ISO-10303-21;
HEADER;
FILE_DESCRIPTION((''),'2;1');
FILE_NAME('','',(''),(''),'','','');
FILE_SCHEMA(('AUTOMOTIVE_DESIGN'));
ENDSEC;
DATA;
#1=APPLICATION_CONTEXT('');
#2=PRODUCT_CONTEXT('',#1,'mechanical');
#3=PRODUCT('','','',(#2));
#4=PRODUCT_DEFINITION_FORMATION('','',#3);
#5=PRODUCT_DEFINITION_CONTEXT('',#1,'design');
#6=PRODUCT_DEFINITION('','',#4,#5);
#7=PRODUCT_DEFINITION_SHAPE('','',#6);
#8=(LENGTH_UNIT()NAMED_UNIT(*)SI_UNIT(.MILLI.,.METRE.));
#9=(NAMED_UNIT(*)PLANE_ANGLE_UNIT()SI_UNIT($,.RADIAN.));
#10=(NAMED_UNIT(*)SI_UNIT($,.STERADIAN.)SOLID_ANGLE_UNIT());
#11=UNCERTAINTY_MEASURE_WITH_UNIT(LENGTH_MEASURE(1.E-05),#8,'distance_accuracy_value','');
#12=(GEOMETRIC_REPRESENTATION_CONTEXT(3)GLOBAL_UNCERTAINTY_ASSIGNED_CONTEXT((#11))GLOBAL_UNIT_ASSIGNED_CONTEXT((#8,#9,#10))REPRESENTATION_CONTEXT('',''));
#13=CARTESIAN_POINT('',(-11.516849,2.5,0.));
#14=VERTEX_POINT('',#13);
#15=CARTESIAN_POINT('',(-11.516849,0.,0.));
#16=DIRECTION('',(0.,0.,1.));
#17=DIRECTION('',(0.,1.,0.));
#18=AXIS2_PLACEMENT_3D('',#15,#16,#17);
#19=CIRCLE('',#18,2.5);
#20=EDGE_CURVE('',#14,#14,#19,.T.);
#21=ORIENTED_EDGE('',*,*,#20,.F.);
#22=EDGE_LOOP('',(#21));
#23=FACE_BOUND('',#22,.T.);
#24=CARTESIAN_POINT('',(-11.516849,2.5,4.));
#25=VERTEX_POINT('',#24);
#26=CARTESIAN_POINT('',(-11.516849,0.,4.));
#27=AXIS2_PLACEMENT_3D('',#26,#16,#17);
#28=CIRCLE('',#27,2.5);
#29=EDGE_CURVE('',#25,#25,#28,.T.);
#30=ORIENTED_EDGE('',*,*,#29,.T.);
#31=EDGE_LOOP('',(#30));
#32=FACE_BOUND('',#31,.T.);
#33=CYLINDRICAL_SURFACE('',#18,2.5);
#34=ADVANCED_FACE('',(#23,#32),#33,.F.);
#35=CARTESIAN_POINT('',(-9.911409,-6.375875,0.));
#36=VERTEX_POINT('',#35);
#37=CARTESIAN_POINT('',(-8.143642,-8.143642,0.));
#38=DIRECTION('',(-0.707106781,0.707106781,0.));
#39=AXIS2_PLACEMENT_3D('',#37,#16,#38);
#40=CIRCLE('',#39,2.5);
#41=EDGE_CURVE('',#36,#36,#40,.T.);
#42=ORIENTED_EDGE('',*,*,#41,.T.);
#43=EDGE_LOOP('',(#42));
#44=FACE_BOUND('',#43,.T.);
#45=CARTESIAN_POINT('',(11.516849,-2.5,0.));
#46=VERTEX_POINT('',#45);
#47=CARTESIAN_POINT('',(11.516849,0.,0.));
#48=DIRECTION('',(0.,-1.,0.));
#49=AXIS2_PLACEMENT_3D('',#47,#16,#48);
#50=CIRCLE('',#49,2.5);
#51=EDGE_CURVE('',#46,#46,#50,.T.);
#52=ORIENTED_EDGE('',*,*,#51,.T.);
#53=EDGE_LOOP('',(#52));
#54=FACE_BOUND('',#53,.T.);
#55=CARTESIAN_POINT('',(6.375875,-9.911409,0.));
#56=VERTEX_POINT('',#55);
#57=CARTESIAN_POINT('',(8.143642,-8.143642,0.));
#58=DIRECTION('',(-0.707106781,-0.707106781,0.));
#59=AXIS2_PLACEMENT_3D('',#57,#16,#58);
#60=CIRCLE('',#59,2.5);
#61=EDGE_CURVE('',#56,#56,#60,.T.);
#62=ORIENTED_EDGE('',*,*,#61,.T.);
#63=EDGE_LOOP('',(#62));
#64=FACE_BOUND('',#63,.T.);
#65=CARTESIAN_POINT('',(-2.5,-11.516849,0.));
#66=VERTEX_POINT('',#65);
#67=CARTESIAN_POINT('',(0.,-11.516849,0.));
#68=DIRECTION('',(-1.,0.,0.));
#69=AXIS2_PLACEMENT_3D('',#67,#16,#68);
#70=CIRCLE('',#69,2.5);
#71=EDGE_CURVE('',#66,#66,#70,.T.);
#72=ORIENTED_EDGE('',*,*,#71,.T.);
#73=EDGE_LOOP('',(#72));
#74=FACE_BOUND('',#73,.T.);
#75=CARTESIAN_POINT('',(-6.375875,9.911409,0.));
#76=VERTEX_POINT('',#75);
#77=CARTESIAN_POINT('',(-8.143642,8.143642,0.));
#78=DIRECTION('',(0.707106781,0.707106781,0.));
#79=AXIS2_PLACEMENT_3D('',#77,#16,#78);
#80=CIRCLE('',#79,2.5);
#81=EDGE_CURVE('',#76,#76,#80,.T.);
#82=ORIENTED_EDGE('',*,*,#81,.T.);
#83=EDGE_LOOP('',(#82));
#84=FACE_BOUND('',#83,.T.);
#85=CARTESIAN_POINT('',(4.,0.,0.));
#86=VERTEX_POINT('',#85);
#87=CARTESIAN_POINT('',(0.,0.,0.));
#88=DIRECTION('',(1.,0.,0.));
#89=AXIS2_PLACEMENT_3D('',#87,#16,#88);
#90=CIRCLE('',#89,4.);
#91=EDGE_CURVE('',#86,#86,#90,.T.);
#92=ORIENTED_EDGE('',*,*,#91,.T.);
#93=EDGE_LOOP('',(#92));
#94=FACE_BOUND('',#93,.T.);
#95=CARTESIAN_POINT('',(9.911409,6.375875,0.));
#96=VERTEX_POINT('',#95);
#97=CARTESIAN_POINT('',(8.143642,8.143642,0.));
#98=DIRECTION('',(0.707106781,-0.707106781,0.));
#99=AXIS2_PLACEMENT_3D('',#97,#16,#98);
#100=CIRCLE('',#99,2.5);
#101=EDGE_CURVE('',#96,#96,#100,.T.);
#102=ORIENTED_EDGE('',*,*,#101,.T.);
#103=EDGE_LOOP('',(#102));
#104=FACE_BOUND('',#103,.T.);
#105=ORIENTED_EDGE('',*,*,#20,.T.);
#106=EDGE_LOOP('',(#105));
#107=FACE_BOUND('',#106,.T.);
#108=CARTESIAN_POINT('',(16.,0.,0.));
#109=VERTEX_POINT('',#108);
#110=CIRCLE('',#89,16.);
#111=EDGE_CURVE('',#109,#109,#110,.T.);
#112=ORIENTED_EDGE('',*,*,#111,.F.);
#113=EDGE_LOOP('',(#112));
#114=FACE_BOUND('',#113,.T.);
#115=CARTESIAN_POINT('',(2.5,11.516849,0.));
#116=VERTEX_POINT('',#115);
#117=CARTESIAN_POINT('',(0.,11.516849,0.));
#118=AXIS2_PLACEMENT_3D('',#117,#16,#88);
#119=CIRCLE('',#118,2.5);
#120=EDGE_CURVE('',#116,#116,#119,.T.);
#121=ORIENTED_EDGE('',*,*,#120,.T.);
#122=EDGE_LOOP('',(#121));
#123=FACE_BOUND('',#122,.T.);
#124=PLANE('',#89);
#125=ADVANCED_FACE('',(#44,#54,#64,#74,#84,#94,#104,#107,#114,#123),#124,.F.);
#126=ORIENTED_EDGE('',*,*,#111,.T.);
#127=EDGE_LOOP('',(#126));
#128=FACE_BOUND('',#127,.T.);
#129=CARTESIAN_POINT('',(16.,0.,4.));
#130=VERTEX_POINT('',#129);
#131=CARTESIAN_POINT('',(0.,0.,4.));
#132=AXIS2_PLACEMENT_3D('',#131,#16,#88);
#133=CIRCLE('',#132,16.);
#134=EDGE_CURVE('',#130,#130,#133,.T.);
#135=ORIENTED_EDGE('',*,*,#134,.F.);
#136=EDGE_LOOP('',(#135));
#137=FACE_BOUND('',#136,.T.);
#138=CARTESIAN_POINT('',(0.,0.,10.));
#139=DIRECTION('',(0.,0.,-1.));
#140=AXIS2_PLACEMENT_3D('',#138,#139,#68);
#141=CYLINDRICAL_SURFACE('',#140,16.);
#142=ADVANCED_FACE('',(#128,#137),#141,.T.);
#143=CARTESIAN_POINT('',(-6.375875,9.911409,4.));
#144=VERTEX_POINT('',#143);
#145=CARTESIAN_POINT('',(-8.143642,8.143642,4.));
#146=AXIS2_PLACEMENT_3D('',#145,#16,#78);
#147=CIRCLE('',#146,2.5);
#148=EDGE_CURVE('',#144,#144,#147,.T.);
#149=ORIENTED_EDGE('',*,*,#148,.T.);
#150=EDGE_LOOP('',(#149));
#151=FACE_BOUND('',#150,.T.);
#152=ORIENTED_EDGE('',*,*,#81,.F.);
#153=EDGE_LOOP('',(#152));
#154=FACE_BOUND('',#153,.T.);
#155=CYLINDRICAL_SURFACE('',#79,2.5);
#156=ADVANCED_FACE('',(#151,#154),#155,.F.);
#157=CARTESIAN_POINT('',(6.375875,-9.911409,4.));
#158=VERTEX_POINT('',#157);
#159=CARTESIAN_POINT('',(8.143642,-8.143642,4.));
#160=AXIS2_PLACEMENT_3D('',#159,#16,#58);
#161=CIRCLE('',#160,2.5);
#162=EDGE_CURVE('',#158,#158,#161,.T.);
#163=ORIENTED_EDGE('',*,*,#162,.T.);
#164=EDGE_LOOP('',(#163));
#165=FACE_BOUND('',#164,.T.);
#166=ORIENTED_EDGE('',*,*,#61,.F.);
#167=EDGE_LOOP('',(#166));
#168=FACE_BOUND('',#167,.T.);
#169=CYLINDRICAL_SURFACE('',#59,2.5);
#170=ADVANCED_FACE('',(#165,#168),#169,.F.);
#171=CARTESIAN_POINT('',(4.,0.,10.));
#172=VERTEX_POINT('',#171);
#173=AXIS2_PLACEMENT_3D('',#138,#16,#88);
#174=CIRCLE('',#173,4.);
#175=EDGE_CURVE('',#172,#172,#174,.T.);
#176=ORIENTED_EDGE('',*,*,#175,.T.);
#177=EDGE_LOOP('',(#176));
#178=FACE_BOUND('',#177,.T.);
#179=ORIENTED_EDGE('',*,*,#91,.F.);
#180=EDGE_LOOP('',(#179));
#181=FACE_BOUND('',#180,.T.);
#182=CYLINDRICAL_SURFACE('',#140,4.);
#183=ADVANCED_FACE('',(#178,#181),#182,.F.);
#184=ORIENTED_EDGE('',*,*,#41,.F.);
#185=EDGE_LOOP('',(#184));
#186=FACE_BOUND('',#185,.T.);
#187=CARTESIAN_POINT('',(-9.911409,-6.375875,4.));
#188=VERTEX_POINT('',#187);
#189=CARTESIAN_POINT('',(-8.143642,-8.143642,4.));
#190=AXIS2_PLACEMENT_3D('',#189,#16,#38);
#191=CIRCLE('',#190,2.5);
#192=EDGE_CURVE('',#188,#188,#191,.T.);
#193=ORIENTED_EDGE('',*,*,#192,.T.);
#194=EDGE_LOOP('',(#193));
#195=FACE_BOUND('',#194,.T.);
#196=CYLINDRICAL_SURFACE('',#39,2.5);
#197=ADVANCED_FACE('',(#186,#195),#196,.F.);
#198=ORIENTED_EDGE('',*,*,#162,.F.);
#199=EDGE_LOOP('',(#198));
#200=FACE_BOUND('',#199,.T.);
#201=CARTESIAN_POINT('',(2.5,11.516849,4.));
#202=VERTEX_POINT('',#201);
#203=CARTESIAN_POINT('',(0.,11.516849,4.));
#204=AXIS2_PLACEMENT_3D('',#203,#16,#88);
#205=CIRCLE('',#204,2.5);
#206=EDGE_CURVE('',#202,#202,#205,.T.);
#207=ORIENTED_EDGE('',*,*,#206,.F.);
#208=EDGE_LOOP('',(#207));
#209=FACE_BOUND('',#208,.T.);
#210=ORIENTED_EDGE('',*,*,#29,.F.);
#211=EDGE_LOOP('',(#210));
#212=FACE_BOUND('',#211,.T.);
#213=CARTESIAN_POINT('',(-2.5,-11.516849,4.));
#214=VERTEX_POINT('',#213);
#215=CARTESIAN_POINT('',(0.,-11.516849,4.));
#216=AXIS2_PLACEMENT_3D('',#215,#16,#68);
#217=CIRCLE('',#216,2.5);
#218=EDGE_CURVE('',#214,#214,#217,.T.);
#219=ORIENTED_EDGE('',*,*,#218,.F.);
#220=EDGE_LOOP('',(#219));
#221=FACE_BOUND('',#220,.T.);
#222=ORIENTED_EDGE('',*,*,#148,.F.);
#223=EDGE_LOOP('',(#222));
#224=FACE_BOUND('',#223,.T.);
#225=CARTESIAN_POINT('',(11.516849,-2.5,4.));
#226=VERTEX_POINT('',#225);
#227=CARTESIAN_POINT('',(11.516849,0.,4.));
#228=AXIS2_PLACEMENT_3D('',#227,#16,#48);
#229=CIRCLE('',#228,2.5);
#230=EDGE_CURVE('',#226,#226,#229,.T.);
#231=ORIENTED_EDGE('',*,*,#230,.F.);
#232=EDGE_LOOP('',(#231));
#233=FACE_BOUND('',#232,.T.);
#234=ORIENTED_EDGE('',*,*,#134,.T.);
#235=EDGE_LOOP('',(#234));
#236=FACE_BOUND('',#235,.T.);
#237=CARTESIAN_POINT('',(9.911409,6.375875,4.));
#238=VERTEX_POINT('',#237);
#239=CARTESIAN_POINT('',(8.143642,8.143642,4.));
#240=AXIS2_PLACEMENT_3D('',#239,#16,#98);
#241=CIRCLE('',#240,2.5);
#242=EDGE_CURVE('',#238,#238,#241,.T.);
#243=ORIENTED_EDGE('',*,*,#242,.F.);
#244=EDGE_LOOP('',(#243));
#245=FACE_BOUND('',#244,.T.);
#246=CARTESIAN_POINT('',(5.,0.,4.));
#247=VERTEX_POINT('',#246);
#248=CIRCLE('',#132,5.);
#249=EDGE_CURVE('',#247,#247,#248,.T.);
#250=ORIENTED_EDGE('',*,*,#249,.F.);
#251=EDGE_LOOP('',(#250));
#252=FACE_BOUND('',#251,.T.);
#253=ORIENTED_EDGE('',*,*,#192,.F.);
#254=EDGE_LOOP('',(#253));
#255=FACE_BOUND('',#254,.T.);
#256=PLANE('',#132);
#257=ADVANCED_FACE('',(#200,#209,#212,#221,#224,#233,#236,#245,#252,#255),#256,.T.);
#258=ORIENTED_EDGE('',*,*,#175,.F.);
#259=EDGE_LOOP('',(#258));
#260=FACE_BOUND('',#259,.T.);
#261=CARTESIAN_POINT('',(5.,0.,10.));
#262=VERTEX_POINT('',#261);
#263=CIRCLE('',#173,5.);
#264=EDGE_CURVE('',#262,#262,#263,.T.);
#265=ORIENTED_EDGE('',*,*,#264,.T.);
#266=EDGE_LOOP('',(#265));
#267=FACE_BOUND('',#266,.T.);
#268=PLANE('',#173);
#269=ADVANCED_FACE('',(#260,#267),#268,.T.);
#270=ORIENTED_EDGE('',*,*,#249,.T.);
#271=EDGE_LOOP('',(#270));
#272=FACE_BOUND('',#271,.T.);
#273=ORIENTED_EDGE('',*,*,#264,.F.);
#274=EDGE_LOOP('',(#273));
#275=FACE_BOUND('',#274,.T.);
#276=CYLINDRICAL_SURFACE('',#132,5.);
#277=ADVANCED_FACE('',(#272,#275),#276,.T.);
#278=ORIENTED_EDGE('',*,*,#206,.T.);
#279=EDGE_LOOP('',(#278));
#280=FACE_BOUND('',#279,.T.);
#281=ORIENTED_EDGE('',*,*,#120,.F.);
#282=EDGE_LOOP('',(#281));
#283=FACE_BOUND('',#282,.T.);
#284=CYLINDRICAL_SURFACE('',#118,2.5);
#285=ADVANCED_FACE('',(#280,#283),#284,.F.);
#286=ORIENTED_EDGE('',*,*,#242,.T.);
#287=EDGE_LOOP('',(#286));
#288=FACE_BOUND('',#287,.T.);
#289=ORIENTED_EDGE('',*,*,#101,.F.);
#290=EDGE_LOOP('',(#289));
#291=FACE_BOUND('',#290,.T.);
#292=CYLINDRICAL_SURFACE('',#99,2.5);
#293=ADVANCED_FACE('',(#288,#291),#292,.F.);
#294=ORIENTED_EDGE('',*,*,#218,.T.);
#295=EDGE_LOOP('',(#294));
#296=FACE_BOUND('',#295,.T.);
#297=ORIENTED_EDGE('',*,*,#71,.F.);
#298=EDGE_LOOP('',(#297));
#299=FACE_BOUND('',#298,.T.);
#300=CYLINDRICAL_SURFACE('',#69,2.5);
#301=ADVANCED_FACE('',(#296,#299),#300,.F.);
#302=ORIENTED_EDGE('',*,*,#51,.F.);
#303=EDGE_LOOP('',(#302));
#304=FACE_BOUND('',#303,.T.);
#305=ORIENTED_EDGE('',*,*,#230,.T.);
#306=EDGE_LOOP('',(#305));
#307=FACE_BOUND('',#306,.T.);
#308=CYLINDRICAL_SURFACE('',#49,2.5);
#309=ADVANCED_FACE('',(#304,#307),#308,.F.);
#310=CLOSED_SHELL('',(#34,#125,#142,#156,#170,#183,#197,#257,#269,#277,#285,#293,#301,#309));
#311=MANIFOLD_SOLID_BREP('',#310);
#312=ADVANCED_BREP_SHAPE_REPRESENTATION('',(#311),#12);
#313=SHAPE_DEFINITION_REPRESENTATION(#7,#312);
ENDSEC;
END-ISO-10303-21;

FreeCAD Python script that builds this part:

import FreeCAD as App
import Part
import Sketcher
from FreeCAD import Vector

doc = App.newDocument("Part")
body = doc.addObject("PartDesign::Body", "Body")

# Sketch on XY plane
sketch1 = doc.addObject("Sketcher::SketchObject", "Sketch")
body.addObject(sketch1)
sketch1.AttachmentSupport = (doc.XY_Plane, [""])
sketch1.MapMode = "FlatFace"
sketch1.addGeometry(Part.Circle(Vector(0, 0, 0), Vector(0, 0, 1), 16), False)
sketch1.addGeometry(Part.Circle(Vector(0, 0, 0), Vector(0, 0, 1), 4), False)
sketch1.addConstraint(Sketcher.Constraint("Coincident", 0, 3, -1, 1))
sketch1.addConstraint(Sketcher.Constraint("Coincident", 1, 3, -1, 1))
sketch1.addConstraint(Sketcher.Constraint("Diameter", 0, 32.0))
sketch1.addConstraint(Sketcher.Constraint("Diameter", 1, 8.0))
pad1 = doc.addObject("PartDesign::Pad", "Pad")
body.addObject(pad1)
pad1.Profile = sketch1
pad1.Length = 10

# Sketch on XY plane
sketch2 = doc.addObject("Sketcher::SketchObject", "Sketch001")
body.addObject(sketch2)
sketch2.AttachmentSupport = (doc.XY_Plane, [""])
sketch2.MapMode = "FlatFace"
sketch2.AttachmentOffset = App.Placement(Vector(0, 0, 10), App.Rotation())
sketch2.addGeometry(Part.Circle(Vector(0, 0, 0), Vector(0, 0, 1), 16), False)
sketch2.addGeometry(Part.Circle(Vector(0, 0, 0), Vector(0, 0, 1), 5), False)
sketch2.addConstraint(Sketcher.Constraint("Coincident", 0, 3, -1, 1))
sketch2.addConstraint(Sketcher.Constraint("Coincident", 1, 3, -1, 1))
sketch2.addConstraint(Sketcher.Constraint("Diameter", 0, 32.0))
sketch2.addConstraint(Sketcher.Constraint("Diameter", 1, 10.0))
pocket1 = doc.addObject("PartDesign::Pocket", "Pocket")
body.addObject(pocket1)
pocket1.Profile = sketch2
pocket1.Length = 6

# Sketch on XY plane
sketch3 = doc.addObject("Sketcher::SketchObject", "Sketch002")
body.addObject(sketch3)
sketch3.AttachmentSupport = (doc.XY_Plane, [""])
sketch3.MapMode = "FlatFace"
sketch3.AttachmentOffset = App.Placement(Vector(0, 0, 4), App.Rotation())
sketch3.addGeometry(Part.Circle(Vector(0, 11.516849, 0), Vector(0, 0, 1), 2.5), False)
sketch3.addConstraint(Sketcher.Constraint("PointOnObject", 0, 3, -2))
sketch3.addConstraint(Sketcher.Constraint("Diameter", 0, 5.0))
sketch3.addConstraint(Sketcher.Constraint("DistanceY", -1, 1, 0, 3, 11.516849))
pocket2 = doc.addObject("PartDesign::Pocket", "Pocket001")
body.addObject(pocket2)
pocket2.Profile = sketch3
pocket2.Type = "ThroughAll"
doc.recompute()

polarpattern = doc.addObject("PartDesign::PolarPattern", "PolarPattern")
body.addObject(polarpattern)
polarpattern.Originals = [pocket2]
polarpattern.Axis = (doc.Z_Axis, [""])
polarpattern.Angle = 360
polarpattern.Occurrences = 8
body.Tip = polarpattern

doc.recompute()
